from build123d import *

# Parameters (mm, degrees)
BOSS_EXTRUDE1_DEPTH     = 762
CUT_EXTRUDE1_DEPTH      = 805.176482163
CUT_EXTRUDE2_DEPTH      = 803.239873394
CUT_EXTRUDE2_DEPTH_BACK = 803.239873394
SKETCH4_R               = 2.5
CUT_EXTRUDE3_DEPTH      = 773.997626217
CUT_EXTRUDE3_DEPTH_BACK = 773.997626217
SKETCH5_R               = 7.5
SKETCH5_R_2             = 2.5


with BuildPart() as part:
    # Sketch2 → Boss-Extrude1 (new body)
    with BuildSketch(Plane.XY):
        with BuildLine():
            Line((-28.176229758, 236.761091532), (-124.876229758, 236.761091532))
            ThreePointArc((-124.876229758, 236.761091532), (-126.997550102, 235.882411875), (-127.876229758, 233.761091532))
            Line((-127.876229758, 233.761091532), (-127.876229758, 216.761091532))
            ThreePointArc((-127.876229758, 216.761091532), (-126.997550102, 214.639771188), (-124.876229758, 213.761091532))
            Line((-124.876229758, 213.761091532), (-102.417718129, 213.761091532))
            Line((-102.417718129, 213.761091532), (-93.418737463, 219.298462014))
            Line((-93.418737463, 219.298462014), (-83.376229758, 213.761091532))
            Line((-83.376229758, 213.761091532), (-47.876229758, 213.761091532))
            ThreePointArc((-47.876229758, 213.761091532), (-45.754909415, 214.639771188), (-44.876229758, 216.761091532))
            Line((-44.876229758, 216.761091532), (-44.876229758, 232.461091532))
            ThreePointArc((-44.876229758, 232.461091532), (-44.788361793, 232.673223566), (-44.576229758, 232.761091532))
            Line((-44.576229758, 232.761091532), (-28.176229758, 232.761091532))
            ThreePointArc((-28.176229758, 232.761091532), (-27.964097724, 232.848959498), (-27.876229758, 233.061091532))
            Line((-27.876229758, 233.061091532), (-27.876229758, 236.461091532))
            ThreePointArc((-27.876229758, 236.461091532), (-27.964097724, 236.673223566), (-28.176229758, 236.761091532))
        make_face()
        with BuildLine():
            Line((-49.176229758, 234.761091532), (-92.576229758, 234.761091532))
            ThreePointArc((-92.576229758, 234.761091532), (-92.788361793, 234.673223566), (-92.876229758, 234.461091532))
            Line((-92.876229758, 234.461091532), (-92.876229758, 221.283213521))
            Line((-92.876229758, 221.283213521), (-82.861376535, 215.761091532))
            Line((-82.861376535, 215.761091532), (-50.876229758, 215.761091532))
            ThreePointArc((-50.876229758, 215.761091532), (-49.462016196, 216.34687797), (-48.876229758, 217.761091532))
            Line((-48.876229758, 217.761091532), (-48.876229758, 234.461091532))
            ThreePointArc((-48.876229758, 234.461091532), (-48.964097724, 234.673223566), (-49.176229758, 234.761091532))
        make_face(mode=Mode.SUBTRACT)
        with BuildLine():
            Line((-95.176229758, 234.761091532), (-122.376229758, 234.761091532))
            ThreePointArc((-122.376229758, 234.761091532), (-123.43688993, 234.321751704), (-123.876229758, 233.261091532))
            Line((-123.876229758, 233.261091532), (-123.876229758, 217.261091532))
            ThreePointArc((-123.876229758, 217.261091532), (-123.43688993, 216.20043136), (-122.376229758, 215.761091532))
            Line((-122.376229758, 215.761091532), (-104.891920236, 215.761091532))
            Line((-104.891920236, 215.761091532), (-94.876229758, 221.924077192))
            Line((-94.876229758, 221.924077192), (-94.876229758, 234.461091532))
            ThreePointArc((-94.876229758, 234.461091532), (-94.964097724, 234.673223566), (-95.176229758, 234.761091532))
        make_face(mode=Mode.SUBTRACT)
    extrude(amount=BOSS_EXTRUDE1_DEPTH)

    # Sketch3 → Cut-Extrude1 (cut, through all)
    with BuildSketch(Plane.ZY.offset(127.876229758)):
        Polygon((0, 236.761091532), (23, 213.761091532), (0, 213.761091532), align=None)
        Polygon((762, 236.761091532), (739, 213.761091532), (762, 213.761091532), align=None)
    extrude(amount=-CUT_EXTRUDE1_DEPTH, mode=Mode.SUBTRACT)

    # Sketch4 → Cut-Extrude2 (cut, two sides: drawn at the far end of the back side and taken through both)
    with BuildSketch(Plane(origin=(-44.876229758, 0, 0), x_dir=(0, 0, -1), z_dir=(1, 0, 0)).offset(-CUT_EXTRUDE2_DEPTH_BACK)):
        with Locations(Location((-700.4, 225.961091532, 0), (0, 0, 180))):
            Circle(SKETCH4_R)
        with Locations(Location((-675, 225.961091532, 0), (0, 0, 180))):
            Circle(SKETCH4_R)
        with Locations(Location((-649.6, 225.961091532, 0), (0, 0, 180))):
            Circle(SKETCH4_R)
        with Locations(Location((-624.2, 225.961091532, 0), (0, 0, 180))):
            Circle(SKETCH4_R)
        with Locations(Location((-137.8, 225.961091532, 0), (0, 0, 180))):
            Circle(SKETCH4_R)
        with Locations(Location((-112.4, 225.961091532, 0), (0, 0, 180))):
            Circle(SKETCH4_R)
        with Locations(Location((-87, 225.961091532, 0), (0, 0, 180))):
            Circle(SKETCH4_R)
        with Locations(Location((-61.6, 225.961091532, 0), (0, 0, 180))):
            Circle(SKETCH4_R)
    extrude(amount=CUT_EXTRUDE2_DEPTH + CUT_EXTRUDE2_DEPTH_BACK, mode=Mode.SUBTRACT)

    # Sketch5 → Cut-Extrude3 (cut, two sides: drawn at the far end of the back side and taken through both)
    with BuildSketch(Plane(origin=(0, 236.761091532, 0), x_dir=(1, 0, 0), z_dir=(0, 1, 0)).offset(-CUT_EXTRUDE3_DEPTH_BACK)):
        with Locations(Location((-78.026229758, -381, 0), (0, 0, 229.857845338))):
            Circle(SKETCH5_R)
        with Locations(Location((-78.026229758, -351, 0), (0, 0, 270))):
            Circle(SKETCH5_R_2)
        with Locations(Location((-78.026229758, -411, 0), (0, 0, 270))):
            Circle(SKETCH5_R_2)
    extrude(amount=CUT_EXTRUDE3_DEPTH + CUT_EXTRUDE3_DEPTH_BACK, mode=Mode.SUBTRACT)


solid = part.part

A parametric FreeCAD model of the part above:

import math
import FreeCAD as App
import Part
import Sketcher

doc = App.newDocument("Part")
body = doc.addObject("PartDesign::Body", "Body")

sketch1 = doc.addObject("Sketcher::SketchObject", "Sketch")
body.addObject(sketch1)
sketch1.AttachmentSupport = (doc.XY_Plane, [""])
sketch1.MapMode = "FlatFace"
sketch1.addGeometry([
    Part.LineSegment(App.Vector(-28.17623, 236.761092, 0), App.Vector(-124.87623, 236.761092, 0)),
    Part.ArcOfCircle(Part.Circle(App.Vector(-124.87623, 233.761092, 0), App.Vector(0, 0, 1), 3), math.radians(90), math.radians(180)),
    Part.LineSegment(App.Vector(-127.87623, 233.761092, 0), App.Vector(-127.87623, 216.761092, 0)),
    Part.ArcOfCircle(Part.Circle(App.Vector(-124.87623, 216.761092, 0), App.Vector(0, 0, 1), 3), math.radians(180), math.radians(270)),
    Part.LineSegment(App.Vector(-124.87623, 213.761092, 0), App.Vector(-102.417718, 213.761092, 0)),
    Part.LineSegment(App.Vector(-102.417718, 213.761092, 0), App.Vector(-93.418737, 219.298462, 0)),
    Part.LineSegment(App.Vector(-93.418737, 219.298462, 0), App.Vector(-83.37623, 213.761092, 0)),
    Part.LineSegment(App.Vector(-83.37623, 213.761092, 0), App.Vector(-47.87623, 213.761092, 0)),
    Part.ArcOfCircle(Part.Circle(App.Vector(-47.87623, 216.761092, 0), App.Vector(0, 0, 1), 3), math.radians(-90), math.radians(0)),
    Part.LineSegment(App.Vector(-44.87623, 216.761092, 0), App.Vector(-44.87623, 232.461092, 0)),
    Part.ArcOfCircle(Part.Circle(App.Vector(-44.57623, 232.461092, 0), App.Vector(0, 0, 1), 0.3), math.radians(90), math.radians(180)),
    Part.LineSegment(App.Vector(-44.57623, 232.761092, 0), App.Vector(-28.17623, 232.761092, 0)),
    Part.ArcOfCircle(Part.Circle(App.Vector(-28.17623, 233.061092, 0), App.Vector(0, 0, 1), 0.3), math.radians(-90), math.radians(0)),
    Part.LineSegment(App.Vector(-27.87623, 233.061092, 0), App.Vector(-27.87623, 236.461092, 0)),
    Part.ArcOfCircle(Part.Circle(App.Vector(-28.17623, 236.461092, 0), App.Vector(0, 0, 1), 0.3), math.radians(0), math.radians(90)),
    Part.LineSegment(App.Vector(-122.37623, 234.761092, 0), App.Vector(-95.17623, 234.761092, 0)),
    Part.ArcOfCircle(Part.Circle(App.Vector(-95.17623, 234.461092, 0), App.Vector(0, 0, 1), 0.3), math.radians(0), math.radians(90)),
    Part.LineSegment(App.Vector(-94.87623, 234.461092, 0), App.Vector(-94.87623, 221.924077, 0)),
    Part.LineSegment(App.Vector(-94.87623, 221.924077, 0), App.Vector(-104.89192, 215.761092, 0)),
    Part.LineSegment(App.Vector(-104.89192, 215.761092, 0), App.Vector(-122.37623, 215.761092, 0)),
    Part.ArcOfCircle(Part.Circle(App.Vector(-122.37623, 217.261092, 0), App.Vector(0, 0, 1), 1.5), math.radians(180), math.radians(270)),
    Part.LineSegment(App.Vector(-123.87623, 217.261092, 0), App.Vector(-123.87623, 233.261092, 0)),
    Part.ArcOfCircle(Part.Circle(App.Vector(-122.37623, 233.261092, 0), App.Vector(0, 0, 1), 1.5), math.radians(90), math.radians(180)),
    Part.LineSegment(App.Vector(-92.57623, 234.761092, 0), App.Vector(-49.17623, 234.761092, 0)),
    Part.ArcOfCircle(Part.Circle(App.Vector(-49.17623, 234.461092, 0), App.Vector(0, 0, 1), 0.3), math.radians(0), math.radians(90)),
    Part.LineSegment(App.Vector(-48.87623, 234.461092, 0), App.Vector(-48.87623, 217.761092, 0)),
    Part.ArcOfCircle(Part.Circle(App.Vector(-50.87623, 217.761092, 0), App.Vector(0, 0, 1), 2), math.radians(-90), math.radians(0)),
    Part.LineSegment(App.Vector(-50.87623, 215.761092, 0), App.Vector(-82.861377, 215.761092, 0)),
    Part.LineSegment(App.Vector(-82.861377, 215.761092, 0), App.Vector(-92.87623, 221.283214, 0)),
    Part.LineSegment(App.Vector(-92.87623, 221.283214, 0), App.Vector(-92.87623, 234.461092, 0)),
    Part.ArcOfCircle(Part.Circle(App.Vector(-92.57623, 234.461092, 0), App.Vector(0, 0, 1), 0.3), math.radians(90), math.radians(180)),
], False)
sketch1.addConstraint([
    Sketcher.Constraint("Tangent", 0, 2, 1, 1),
    Sketcher.Constraint("Tangent", 1, 2, 2, 1),
    Sketcher.Constraint("Tangent", 2, 2, 3, 1),
    Sketcher.Constraint("Tangent", 3, 2, 4, 1),
    Sketcher.Constraint("Coincident", 4, 2, 5, 1),
    Sketcher.Constraint("Coincident", 5, 2, 6, 1),
    Sketcher.Constraint("Coincident", 6, 2, 7, 1),
    Sketcher.Constraint("Tangent", 7, 2, 8, 1),
    Sketcher.Constraint("Tangent", 8, 2, 9, 1),
    Sketcher.Constraint("Tangent", 9, 2, 10, 2),
    Sketcher.Constraint("Tangent", 10, 1, 11, 1),
    Sketcher.Constraint("Tangent", 11, 2, 12, 1),
    Sketcher.Constraint("Tangent", 12, 2, 13, 1),
    Sketcher.Constraint("Tangent", 13, 2, 14, 1),
    Sketcher.Constraint("Tangent", 14, 2, 0, 1),
    Sketcher.Constraint("Tangent", 15, 2, 16, 2),
    Sketcher.Constraint("Tangent", 16, 1, 17, 1),
    Sketcher.Constraint("Coincident", 17, 2, 18, 1),
    Sketcher.Constraint("Coincident", 18, 2, 19, 1),
    Sketcher.Constraint("Tangent", 19, 2, 20, 2),
    Sketcher.Constraint("Tangent", 20, 1, 21, 1),
    Sketcher.Constraint("Tangent", 21, 2, 22, 2),
    Sketcher.Constraint("Tangent", 22, 1, 15, 1),
    Sketcher.Constraint("Tangent", 23, 2, 24, 2),
    Sketcher.Constraint("Tangent", 24, 1, 25, 1),
    Sketcher.Constraint("Tangent", 25, 2, 26, 2),
    Sketcher.Constraint("Tangent", 26, 1, 27, 1),
    Sketcher.Constraint("Coincident", 27, 2, 28, 1),
    Sketcher.Constraint("Coincident", 28, 2, 29, 1),
    Sketcher.Constraint("Tangent", 29, 2, 30, 2),
    Sketcher.Constraint("Tangent", 30, 1, 23, 1),
    Sketcher.Constraint("Horizontal", 0),
    Sketcher.Constraint("Vertical", 2),
    Sketcher.Constraint("Horizontal", 4),
    Sketcher.Constraint("Horizontal", 7),
    Sketcher.Constraint("Vertical", 9),
    Sketcher.Constraint("Horizontal", 11),
    Sketcher.Constraint("Vertical", 13),
    Sketcher.Constraint("Horizontal", 15),
    Sketcher.Constraint("Vertical", 17),
    Sketcher.Constraint("Horizontal", 19),
    Sketcher.Constraint("Vertical", 21),
    Sketcher.Constraint("Horizontal", 23),
    Sketcher.Constraint("Vertical", 25),
    Sketcher.Constraint("Horizontal", 27),
    Sketcher.Constraint("Vertical", 29),
    Sketcher.Constraint("Equal", 1, 3),
    Sketcher.Constraint("Equal", 3, 8),
    Sketcher.Constraint("Equal", 10, 12),
    Sketcher.Constraint("Equal", 12, 14),
    Sketcher.Constraint("Equal", 14, 16),
    Sketcher.Constraint("Equal", 20, 22),
    Sketcher.Constraint("Equal", 16, 24),
    Sketcher.Constraint("Equal", 24, 30),
    Sketcher.Constraint("Parallel", 5, 18),
    Sketcher.Constraint("Parallel", 6, 28),
    Sketcher.Constraint("Horizontal", 3, 3, 8, 3),
    Sketcher.Constraint("Horizontal", 16, 3, 24, 3),
    Sketcher.Constraint("Horizontal", 19, 2, 26, 1),
    Sketcher.Constraint("Radius", 1, 3.0),
    Sketcher.Constraint("Radius", 26, 2.0),
    Sketcher.Constraint("Radius", 10, 0.3),
    Sketcher.Constraint("Radius", 20, 1.5),
    Sketcher.Constraint("DistanceY", 2, 2, 2, 1, 17.0),
    Sketcher.Constraint("DistanceY", 21, 1, 21, 2, 16.0),
    Sketcher.Constraint("DistanceX", 0, 2, 0, 1, 96.7),
    Sketcher.Constraint("DistanceX", 7, 1, 7, 2, 35.5),
    Sketcher.Constraint("DistanceX", 11, 1, 11, 2, 16.4),
    Sketcher.Constraint("DistanceX", 15, 1, 15, 2, 27.2),
    Sketcher.Constraint("DistanceX", 23, 1, 23, 2, 43.4),
    Sketcher.Constraint("DistanceY", 9, 1, 9, 2, 15.7),
    Sketcher.Constraint("DistanceY", 10, 3, 16, 3, 2.0),
    Sketcher.Constraint("DistanceX", 16, 3, 12, 3, 67.0),
    Sketcher.Constraint("DistanceX", 24, 3, 12, 3, 21.0),
    Sketcher.Constraint("DistanceX", 4, 1, 4, 2, 22.458512),
    Sketcher.Constraint("DistanceX", 19, 2, 19, 1, 17.48431),
    Sketcher.Constraint("DistanceY", 29, 1, 29, 2, 13.177878),
    Sketcher.Constraint("Distance", 5, 10.566178),
    Sketcher.Constraint("Distance", 18, 11.759951),
    Sketcher.Constraint("DistanceX", 1, 3, -1, 1, 124.87623),
    Sketcher.Constraint("DistanceY", -1, 1, 1, 3, 233.761092),
])
pad1 = doc.addObject("PartDesign::Pad", "Pad")
body.addObject(pad1)
pad1.Profile = sketch1
pad1.Length = 762

sketch2 = doc.addObject("Sketcher::SketchObject", "Sketch001")
body.addObject(sketch2)
sketch2.AttachmentSupport = (doc.YZ_Plane, [""])
sketch2.MapMode = "FlatFace"
sketch2.AttachmentOffset = App.Placement(App.Vector(0, 0, -127.87623), App.Rotation())
sketch2.addGeometry([
    Part.LineSegment(App.Vector(213.761092, 23, 0), App.Vector(236.761092, 0, 0)),
    Part.LineSegment(App.Vector(236.761092, 0, 0), App.Vector(213.761092, 0, 0)),
    Part.LineSegment(App.Vector(213.761092, 0, 0), App.Vector(213.761092, 23, 0)),
    Part.LineSegment(App.Vector(236.761092, 762, 0), App.Vector(213.761092, 739, 0)),
    Part.LineSegment(App.Vector(213.761092, 739, 0), App.Vector(213.761092, 762, 0)),
    Part.LineSegment(App.Vector(213.761092, 762, 0), App.Vector(236.761092, 762, 0)),
], False)
sketch2.addConstraint([
    Sketcher.Constraint("Coincident", 0, 2, 1, 1),
    Sketcher.Constraint("Coincident", 1, 2, 2, 1),
    Sketcher.Constraint("Coincident", 2, 2, 0, 1),
    Sketcher.Constraint("Coincident", 3, 2, 4, 1),
    Sketcher.Constraint("Coincident", 4, 2, 5, 1),
    Sketcher.Constraint("Coincident", 5, 2, 3, 1),
    Sketcher.Constraint("Horizontal", 1),
    Sketcher.Constraint("Vertical", 2),
    Sketcher.Constraint("Vertical", 4),
    Sketcher.Constraint("Horizontal", 5),
    Sketcher.Constraint("PointOnObject", 0, 2, -1),
    Sketcher.Constraint("Perpendicular", 0, 3),
    Sketcher.Constraint("Vertical", 2, 2, 3, 2),
    Sketcher.Constraint("Vertical", 0, 2, 5, 2),
    Sketcher.Constraint("Equal", 5, 2),
    Sketcher.Constraint("DistanceX", 1, 2, 1, 1, 23.0),
    Sketcher.Constraint("DistanceY", -1, 1, 3, 2, 739.0),
    Sketcher.Constraint("DistanceX", -1, 1, 0, 2, 236.761092),
])
pocket1 = doc.addObject("PartDesign::Pocket", "Pocket")
body.addObject(pocket1)
pocket1.Profile = sketch2
pocket1.Type = "ThroughAll"
pocket1.Reversed = True

sketch3 = doc.addObject("Sketcher::SketchObject", "Sketch002")
body.addObject(sketch3)
sketch3.AttachmentSupport = (doc.YZ_Plane, [""])
sketch3.MapMode = "FlatFace"
sketch3.AttachmentOffset = App.Placement(App.Vector(0, 0, -44.87623), App.Rotation())
sketch3.addGeometry([
    Part.Circle(App.Vector(225.961092, 700.4, 0), App.Vector(0, 0, 1), 2.5),
    Part.Circle(App.Vector(225.961092, 675, 0), App.Vector(0, 0, 1), 2.5),
    Part.Circle(App.Vector(225.961092, 649.6, 0), App.Vector(0, 0, 1), 2.5),
    Part.Circle(App.Vector(225.961092, 624.2, 0), App.Vector(0, 0, 1), 2.5),
    Part.Circle(App.Vector(225.961092, 137.8, 0), App.Vector(0, 0, 1), 2.5),
    Part.Circle(App.Vector(225.961092, 112.4, 0), App.Vector(0, 0, 1), 2.5),
    Part.Circle(App.Vector(225.961092, 87, 0), App.Vector(0, 0, 1), 2.5),
    Part.Circle(App.Vector(225.961092, 61.6, 0), App.Vector(0, 0, 1), 2.5),
], False)
sketch3.addConstraint([
    Sketcher.Constraint("Equal", 0, 1),
    Sketcher.Constraint("Equal", 1, 2),
    Sketcher.Constraint("Equal", 2, 3),
    Sketcher.Constraint("Equal", 3, 4),
    Sketcher.Constraint("Equal", 4, 5),
    Sketcher.Constraint("Equal", 5, 6),
    Sketcher.Constraint("Equal", 6, 7),
    Sketcher.Constraint("Vertical", 0, 3, 1, 3),
    Sketcher.Constraint("Vertical", 1, 3, 2, 3),
    Sketcher.Constraint("Vertical", 2, 3, 3, 3),
    Sketcher.Constraint("Vertical", 3, 3, 4, 3),
    Sketcher.Constraint("Vertical", 4, 3, 5, 3),
    Sketcher.Constraint("Vertical", 5, 3, 6, 3),
    Sketcher.Constraint("Vertical", 6, 3, 7, 3),
    Sketcher.Constraint("Diameter", 0, 5.0),
    Sketcher.Constraint("DistanceY", -1, 1, 1, 3, 675.0),
    Sketcher.Constraint("DistanceY", -1, 1, 6, 3, 87.0),
    Sketcher.Constraint("DistanceY", 5, 3, 0, 3, 588.0),
    Sketcher.Constraint("DistanceY", 7, 3, 2, 3, 588.0),
    Sketcher.Constraint("DistanceY", -1, 1, 0, 3, 700.4),
    Sketcher.Constraint("DistanceY", -1, 1, 2, 3, 649.6),
    Sketcher.Constraint("DistanceY", -1, 1, 3, 3, 624.2),
    Sketcher.Constraint("DistanceY", -1, 1, 4, 3, 137.8),
    Sketcher.Constraint("DistanceX", -1, 1, 0, 3, 225.961092),
])
pocket2 = doc.addObject("PartDesign::Pocket", "Pocket001")
body.addObject(pocket2)
pocket2.Profile = sketch3
pocket2.Type = "ThroughAll"
pocket2.Midplane = True

sketch4 = doc.addObject("Sketcher::SketchObject", "Sketch003")
body.addObject(sketch4)
sketch4.AttachmentSupport = (doc.XZ_Plane, [""])
sketch4.MapMode = "FlatFace"
sketch4.AttachmentOffset = App.Placement(App.Vector(0, 0, -236.761092), App.Rotation())
sketch4.addGeometry([
    Part.Circle(App.Vector(-78.02623, 381, 0), App.Vector(0, 0, 1), 7.5),
    Part.Circle(App.Vector(-78.02623, 351, 0), App.Vector(0, 0, 1), 2.5),
    Part.Circle(App.Vector(-78.02623, 411, 0), App.Vector(0, 0, 1), 2.5),
], False)
sketch4.addConstraint([
    Sketcher.Constraint("Equal", 1, 2),
    Sketcher.Constraint("Vertical", 0, 3, 1, 3),
    Sketcher.Constraint("Vertical", 1, 3, 2, 3),
    Sketcher.Constraint("Diameter", 0, 15.0),
    Sketcher.Constraint("Diameter", 1, 5.0),
    Sketcher.Constraint("DistanceY", -1, 1, 0, 3, 381.0),
    Sketcher.Constraint("DistanceY", -1, 1, 1, 3, 351.0),
    Sketcher.Constraint("DistanceY", -1, 1, 2, 3, 411.0),
    Sketcher.Constraint("DistanceX", 0, 3, -1, 1, 78.02623),
])
pocket3 = doc.addObject("PartDesign::Pocket", "Pocket002")
body.addObject(pocket3)
pocket3.Profile = sketch4
pocket3.Type = "ThroughAll"
pocket3.Midplane = True

doc.recompute()
